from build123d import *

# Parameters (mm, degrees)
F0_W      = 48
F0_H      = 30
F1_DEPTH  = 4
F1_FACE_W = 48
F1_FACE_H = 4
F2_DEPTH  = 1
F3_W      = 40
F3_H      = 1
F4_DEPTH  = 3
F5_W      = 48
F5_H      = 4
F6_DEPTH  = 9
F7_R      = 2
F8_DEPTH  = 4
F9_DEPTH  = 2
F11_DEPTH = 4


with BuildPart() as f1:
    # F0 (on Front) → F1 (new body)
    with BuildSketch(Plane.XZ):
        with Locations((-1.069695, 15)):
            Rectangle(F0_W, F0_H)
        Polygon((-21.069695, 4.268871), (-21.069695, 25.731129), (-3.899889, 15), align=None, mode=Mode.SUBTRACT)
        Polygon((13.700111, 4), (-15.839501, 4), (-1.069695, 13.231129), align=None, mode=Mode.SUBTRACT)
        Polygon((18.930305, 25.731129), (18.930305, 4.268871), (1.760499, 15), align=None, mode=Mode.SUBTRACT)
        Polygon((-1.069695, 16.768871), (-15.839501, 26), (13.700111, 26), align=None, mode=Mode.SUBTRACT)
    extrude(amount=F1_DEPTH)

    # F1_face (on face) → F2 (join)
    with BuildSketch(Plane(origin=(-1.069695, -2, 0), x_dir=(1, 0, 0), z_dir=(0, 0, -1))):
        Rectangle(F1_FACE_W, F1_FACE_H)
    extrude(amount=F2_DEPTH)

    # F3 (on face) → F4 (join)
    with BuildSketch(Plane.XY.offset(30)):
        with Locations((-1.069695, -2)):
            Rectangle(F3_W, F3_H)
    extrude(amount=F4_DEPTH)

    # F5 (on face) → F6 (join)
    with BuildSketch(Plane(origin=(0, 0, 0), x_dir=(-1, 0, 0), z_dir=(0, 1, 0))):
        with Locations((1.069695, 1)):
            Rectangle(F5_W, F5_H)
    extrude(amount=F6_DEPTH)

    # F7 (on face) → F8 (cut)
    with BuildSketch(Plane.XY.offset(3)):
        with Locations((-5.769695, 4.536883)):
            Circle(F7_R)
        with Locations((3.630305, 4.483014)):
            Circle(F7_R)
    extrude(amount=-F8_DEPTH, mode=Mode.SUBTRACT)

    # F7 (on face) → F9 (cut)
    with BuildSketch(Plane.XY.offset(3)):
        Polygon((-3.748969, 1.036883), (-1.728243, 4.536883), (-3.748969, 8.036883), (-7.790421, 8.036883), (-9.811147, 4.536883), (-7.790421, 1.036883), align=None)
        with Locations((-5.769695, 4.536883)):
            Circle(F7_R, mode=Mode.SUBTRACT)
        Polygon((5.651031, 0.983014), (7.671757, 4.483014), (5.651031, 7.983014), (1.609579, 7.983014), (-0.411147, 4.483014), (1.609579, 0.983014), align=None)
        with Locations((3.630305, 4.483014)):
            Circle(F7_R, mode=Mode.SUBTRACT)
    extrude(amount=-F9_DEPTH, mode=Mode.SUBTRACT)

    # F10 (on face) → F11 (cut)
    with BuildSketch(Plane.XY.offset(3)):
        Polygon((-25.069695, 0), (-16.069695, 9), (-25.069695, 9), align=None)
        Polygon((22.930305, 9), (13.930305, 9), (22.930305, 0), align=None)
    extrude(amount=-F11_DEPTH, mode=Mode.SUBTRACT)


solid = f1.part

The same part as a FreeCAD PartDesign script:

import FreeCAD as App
import Part
import Sketcher

V = App.Vector
Q = App.Units.Quantity


def add_polygon(sketch, points):
    """Adds a closed chain of lines whose ends are joined by coincident constraints."""
    first, n = sketch.GeometryCount, len(points)
    for a, b in zip(points, points[1:] + points[:1]):
        sketch.addGeometry(Part.LineSegment(App.Vector(*a, 0), App.Vector(*b, 0)), False)
    for i in range(n):
        sketch.addConstraint(Sketcher.Constraint("Coincident", first + i, 2, first + (i + 1) % n, 1))

doc = App.newDocument("Part")
body = doc.addObject("PartDesign::Body", "Body")

# Sketch on XZ plane
sketch1 = body.newObject("Sketcher::SketchObject", "Sketch")
sketch1.AttachmentSupport = (doc.getObject("XZ_Plane"), [""])
sketch1.MapMode = "FlatFace"
add_polygon(sketch1, [(-25.069695, 30), (-25.069695, 0), (22.930305, 0), (22.930305, 30)])  # lines 0-3
add_polygon(sketch1, [(-3.899889, 15), (-21.069695, 4.268871), (-21.069695, 25.731129)])  # lines 4-6
add_polygon(sketch1, [(-1.069695, 13.231129), (13.700111, 4), (-15.839501, 4)])  # lines 7-9
add_polygon(sketch1, [(13.700111, 26), (-1.069695, 16.768871), (-15.839501, 26)])  # lines 10-12
add_polygon(sketch1, [(1.760499, 15), (18.930305, 25.731129), (18.930305, 4.268871)])  # lines 13-15
sketch1.addConstraint(Sketcher.Constraint("Vertical", 0))
sketch1.addConstraint(Sketcher.Constraint("Horizontal", 1))
sketch1.addConstraint(Sketcher.Constraint("Vertical", 2))
sketch1.addConstraint(Sketcher.Constraint("Horizontal", 3))
sketch1.addConstraint(Sketcher.Constraint("Vertical", 5))
sketch1.addConstraint(Sketcher.Constraint("Horizontal", 8))
sketch1.addConstraint(Sketcher.Constraint("Horizontal", 12))
sketch1.addConstraint(Sketcher.Constraint("Vertical", 14))
sketch1.addConstraint(Sketcher.Constraint("PointOnObject", 0, 2, -1))
sketch1.addConstraint(Sketcher.Constraint("Parallel", 6, 7))
sketch1.addConstraint(Sketcher.Constraint("Parallel", 4, 9))
sketch1.addConstraint(Sketcher.Constraint("Parallel", 9, 10))
sketch1.addConstraint(Sketcher.Constraint("Parallel", 7, 11))
sketch1.addConstraint(Sketcher.Constraint("Parallel", 10, 13))
sketch1.addConstraint(Sketcher.Constraint("Parallel", 11, 15))
sketch1.addConstraint(Sketcher.Constraint("Horizontal", 5, 2, 13, 2))
sketch1.addConstraint(Sketcher.Constraint("Horizontal", 4, 2, 14, 2))
sketch1.addConstraint(Sketcher.Constraint("Horizontal", 6, 2, 15, 2))
sketch1.addConstraint(Sketcher.Constraint("Vertical", 9, 2, 10, 2))
sketch1.addConstraint(Sketcher.Constraint("Vertical", 8, 2, 11, 2))
sketch1.addConstraint(Sketcher.Constraint("DistanceX", 1, 1, 1, 2, Q("48 mm")))
sketch1.addConstraint(Sketcher.Constraint("DistanceY", 0, 2, 0, 1, Q("30 mm")))
sketch1.addConstraint(Sketcher.Constraint("DistanceY", -1, 1, 6, 2, Q("15 mm")))
sketch1.addConstraint(Sketcher.Constraint("DistanceY", -1, 1, 7, 2, Q("4 mm")))
sketch1.addConstraint(Sketcher.Constraint("DistanceY", -1, 1, 11, 2, Q("26 mm")))
sketch1.addConstraint(Sketcher.Constraint("DistanceX", 0, 2, 4, 2, Q("4 mm")))
sketch1.addConstraint(Sketcher.Constraint("DistanceX", 4, 2, 9, 2, Q("20 mm")))
sketch1.addConstraint(Sketcher.Constraint("DistanceX", 13, 2, 2, 2, Q("4 mm")))
sketch1.addConstraint(Sketcher.Constraint("DistanceX", 6, 2, 7, 2, Q("17.6 mm")))
sketch1.addConstraint(Sketcher.Constraint("DistanceY", 9, 2, 5, 2, Q("12.5 mm")))
sketch1.addConstraint(Sketcher.Constraint("DistanceX", 8, 2, 8, 1, Q("29.539612 mm")))
sketch1.addConstraint(Sketcher.Constraint("DistanceX", 8, 2, -1, 1, Q("15.839501 mm")))
pad1 = body.newObject("PartDesign::Pad", "Pad")
pad1.Profile = sketch1
pad1.Length = 4

# Sketch on XY plane
sketch2 = body.newObject("Sketcher::SketchObject", "Sketch001")
sketch2.AttachmentSupport = (doc.getObject("XY_Plane"), [""])
sketch2.MapMode = "FlatFace"
add_polygon(sketch2, [(-25.069695, -4), (-25.069695, 0), (22.930305, 0), (22.930305, -4)])  # lines 0-3
sketch2.addConstraint(Sketcher.Constraint("Vertical", 0))
sketch2.addConstraint(Sketcher.Constraint("Horizontal", 1))
sketch2.addConstraint(Sketcher.Constraint("Vertical", 2))
sketch2.addConstraint(Sketcher.Constraint("Horizontal", 3))
sketch2.addConstraint(Sketcher.Constraint("PointOnObject", 0, 2, -1))
sketch2.addConstraint(Sketcher.Constraint("DistanceX", 1, 1, 1, 2, Q("48 mm")))
sketch2.addConstraint(Sketcher.Constraint("DistanceY", 0, 1, 0, 2, Q("4 mm")))
sketch2.addConstraint(Sketcher.Constraint("DistanceX", 0, 2, -1, 1, Q("25.069695 mm")))
pad2 = body.newObject("PartDesign::Pad", "Pad001")
pad2.Profile = sketch2
pad2.Length = 1
pad2.Reversed = True

# Sketch on XY plane
sketch3 = body.newObject("Sketcher::SketchObject", "Sketch002")
sketch3.AttachmentSupport = (doc.getObject("XY_Plane"), [""])
sketch3.MapMode = "FlatFace"
sketch3.AttachmentOffset = App.Placement(V(0, 0, 30), App.Rotation())
add_polygon(sketch3, [(-21.069695, -1.5), (-21.069695, -2.5), (18.930305, -2.5), (18.930305, -1.5)])  # lines 0-3
sketch3.addConstraint(Sketcher.Constraint("Vertical", 0))
sketch3.addConstraint(Sketcher.Constraint("Horizontal", 1))
sketch3.addConstraint(Sketcher.Constraint("Vertical", 2))
sketch3.addConstraint(Sketcher.Constraint("Horizontal", 3))
sketch3.addConstraint(Sketcher.Constraint("DistanceX", 1, 1, 1, 2, Q("40 mm")))
sketch3.addConstraint(Sketcher.Constraint("DistanceY", 0, 2, 0, 1, Q("1 mm")))
sketch3.addConstraint(Sketcher.Constraint("DistanceY", 0, 2, -1, 1, Q("2.5 mm")))
sketch3.addConstraint(Sketcher.Constraint("DistanceX", 0, 2, -1, 1, Q("21.069695 mm")))
pad3 = body.newObject("PartDesign::Pad", "Pad002")
pad3.Profile = sketch3
pad3.Length = 3

# Sketch on XZ plane
sketch4 = body.newObject("Sketcher::SketchObject", "Sketch003")
sketch4.AttachmentSupport = (doc.getObject("XZ_Plane"), [""])
sketch4.MapMode = "FlatFace"
add_polygon(sketch4, [(22.930305, 3), (22.930305, -1), (-25.069695, -1), (-25.069695, 3)])  # lines 0-3
sketch4.addConstraint(Sketcher.Constraint("Vertical", 0))
sketch4.addConstraint(Sketcher.Constraint("Horizontal", 1))
sketch4.addConstraint(Sketcher.Constraint("Vertical", 2))
sketch4.addConstraint(Sketcher.Constraint("Horizontal", 3))
sketch4.addConstraint(Sketcher.Constraint("DistanceX", 1, 2, 1, 1, Q("48 mm")))
sketch4.addConstraint(Sketcher.Constraint("DistanceY", 0, 2, 0, 1, Q("4 mm")))
sketch4.addConstraint(Sketcher.Constraint("DistanceY", 0, 2, -1, 1, Q("1 mm")))
sketch4.addConstraint(Sketcher.Constraint("DistanceX", -1, 1, 0, 2, Q("22.930305 mm")))
pad4 = body.newObject("PartDesign::Pad", "Pad003")
pad4.Profile = sketch4
pad4.Length = 9
pad4.Reversed = True

# Sketch on XY plane
sketch5 = body.newObject("Sketcher::SketchObject", "Sketch004")
sketch5.AttachmentSupport = (doc.getObject("XY_Plane"), [""])
sketch5.MapMode = "FlatFace"
sketch5.AttachmentOffset = App.Placement(V(0, 0, 3), App.Rotation())
sketch5.addGeometry(Part.Circle(V(-5.769695, 4.536883, 0), V(0, 0, 1), 2), False)
sketch5.addGeometry(Part.Circle(V(3.630305, 4.483014, 0), V(0, 0, 1), 2), False)
sketch5.addConstraint(Sketcher.Constraint("Equal", 0, 1))
sketch5.addConstraint(Sketcher.Constraint("Diameter", 0, Q("4 mm")))
sketch5.addConstraint(Sketcher.Constraint("DistanceX", 0, 3, 1, 3, Q("9.4 mm")))
sketch5.addConstraint(Sketcher.Constraint("DistanceY", 1, 3, 0, 3, Q("0.053869 mm")))
sketch5.addConstraint(Sketcher.Constraint("DistanceX", 0, 3, -1, 1, Q("5.769695 mm")))
sketch5.addConstraint(Sketcher.Constraint("DistanceY", -1, 1, 0, 3, Q("4.536883 mm")))
pocket1 = body.newObject("PartDesign::Pocket", "Pocket")
pocket1.Profile = sketch5
pocket1.Length = 4

# Sketch on XY plane
sketch6 = body.newObject("Sketcher::SketchObject", "Sketch005")
sketch6.AttachmentSupport = (doc.getObject("XY_Plane"), [""])
sketch6.MapMode = "FlatFace"
sketch6.AttachmentOffset = App.Placement(V(0, 0, 3), App.Rotation())
add_polygon(sketch6, [(-3.748969, 1.036883), (-1.728243, 4.536883), (-3.748969, 8.036883), (-7.790421, 8.036883), (-9.811147, 4.536883), (-7.790421, 1.036883)])  # lines 0-5
sketch6.addGeometry(Part.Circle(V(-5.769695, 4.536883, 0), V(0, 0, 1), 2), False)  # 6
add_polygon(sketch6, [(5.651031, 0.983014), (7.671757, 4.483014), (5.651031, 7.983014), (1.609579, 7.983014), (-0.411147, 4.483014), (1.609579, 0.983014)])  # lines 7-12
sketch6.addGeometry(Part.Circle(V(3.630305, 4.483014, 0), V(0, 0, 1), 2), False)  # 13
sketch6.addConstraint(Sketcher.Constraint("Horizontal", 2))
sketch6.addConstraint(Sketcher.Constraint("Horizontal", 5))
sketch6.addConstraint(Sketcher.Constraint("Horizontal", 9))
sketch6.addConstraint(Sketcher.Constraint("Horizontal", 12))
sketch6.addConstraint(Sketcher.Constraint("Equal", 6, 13))
sketch6.addConstraint(Sketcher.Constraint("Parallel", 0, 3))
sketch6.addConstraint(Sketcher.Constraint("Parallel", 1, 4))
sketch6.addConstraint(Sketcher.Constraint("Parallel", 3, 7))
sketch6.addConstraint(Sketcher.Constraint("Parallel", 4, 8))
sketch6.addConstraint(Sketcher.Constraint("Parallel", 7, 10))
sketch6.addConstraint(Sketcher.Constraint("Parallel", 8, 11))
sketch6.addConstraint(Sketcher.Constraint("Horizontal", 6, 3, 0, 2))
sketch6.addConstraint(Sketcher.Constraint("Horizontal", 0, 2, 3, 2))
sketch6.addConstraint(Sketcher.Constraint("Horizontal", 13, 3, 7, 2))
sketch6.addConstraint(Sketcher.Constraint("Horizontal", 7, 2, 10, 2))
sketch6.addConstraint(Sketcher.Constraint("Vertical", 2, 2, 4, 2))
sketch6.addConstraint(Sketcher.Constraint("Vertical", 1, 2, 5, 2))
sketch6.addConstraint(Sketcher.Constraint("Vertical", 9, 2, 11, 2))
sketch6.addConstraint(Sketcher.Constraint("Equal", 5, 9))
sketch6.addConstraint(Sketcher.Constraint("Equal", 4, 7))
sketch6.addConstraint(Sketcher.Constraint("Diameter", 6, Q("4 mm")))
sketch6.addConstraint(Sketcher.Constraint("Angle", 0, Q("59.999999 deg")))
sketch6.addConstraint(Sketcher.Constraint("DistanceY", 4, 2, 2, 2, Q("7 mm")))
sketch6.addConstraint(Sketcher.Constraint("DistanceX", 6, 3, 13, 3, Q("9.4 mm")))
sketch6.addConstraint(Sketcher.Constraint("DistanceX", 0, 2, 7, 2, Q("9.4 mm")))
sketch6.addConstraint(Sketcher.Constraint("DistanceX", 2, 2, 2, 1, Q("4.041452 mm")))
sketch6.addConstraint(Sketcher.Constraint("DistanceX", 1, 2, -1, 1, Q("3.748969 mm")))
sketch6.addConstraint(Sketcher.Constraint("DistanceY", 13, 3, 6, 3, Q("0.053869 mm")))
sketch6.addConstraint(Sketcher.Constraint("DistanceX", 6, 3, 0, 2, Q("4.041452 mm")))
sketch6.addConstraint(Sketcher.Constraint("DistanceY", -1, 1, 6, 3, Q("4.536883 mm")))
pocket2 = body.newObject("PartDesign::Pocket", "Pocket001")
pocket2.Profile = sketch6
pocket2.Length = 2

# Sketch on XY plane
sketch7 = body.newObject("Sketcher::SketchObject", "Sketch006")
sketch7.AttachmentSupport = (doc.getObject("XY_Plane"), [""])
sketch7.MapMode = "FlatFace"
sketch7.AttachmentOffset = App.Placement(V(0, 0, 3), App.Rotation())
add_polygon(sketch7, [(-25.069695, 0), (-16.069695, 9), (-25.069695, 9)])  # lines 0-2
add_polygon(sketch7, [(22.930305, 9), (13.930305, 9), (22.930305, 0)])  # lines 3-5
sketch7.addConstraint(Sketcher.Constraint("Horizontal", 1))
sketch7.addConstraint(Sketcher.Constraint("Vertical", 2))
sketch7.addConstraint(Sketcher.Constraint("Horizontal", 3))
sketch7.addConstraint(Sketcher.Constraint("Vertical", 5))
sketch7.addConstraint(Sketcher.Constraint("PointOnObject", 2, 2, -1))
sketch7.addConstraint(Sketcher.Constraint("PointOnObject", 4, 2, -1))
sketch7.addConstraint(Sketcher.Constraint("Perpendicular", 0, 4))
sketch7.addConstraint(Sketcher.Constraint("Horizontal", 1, 2, 3, 2))
sketch7.addConstraint(Sketcher.Constraint("Equal", 1, 3))
sketch7.addConstraint(Sketcher.Constraint("DistanceX", 1, 2, 1, 1, Q("9 mm")))
sketch7.addConstraint(Sketcher.Constraint("DistanceX", 0, 2, 3, 2, Q("30 mm")))
sketch7.addConstraint(Sketcher.Constraint("DistanceX", 0, 2, -1, 1, Q("16.069695 mm")))
pocket3 = body.newObject("PartDesign::Pocket", "Pocket002")
pocket3.Profile = sketch7
pocket3.Length = 4

doc.recompute()
